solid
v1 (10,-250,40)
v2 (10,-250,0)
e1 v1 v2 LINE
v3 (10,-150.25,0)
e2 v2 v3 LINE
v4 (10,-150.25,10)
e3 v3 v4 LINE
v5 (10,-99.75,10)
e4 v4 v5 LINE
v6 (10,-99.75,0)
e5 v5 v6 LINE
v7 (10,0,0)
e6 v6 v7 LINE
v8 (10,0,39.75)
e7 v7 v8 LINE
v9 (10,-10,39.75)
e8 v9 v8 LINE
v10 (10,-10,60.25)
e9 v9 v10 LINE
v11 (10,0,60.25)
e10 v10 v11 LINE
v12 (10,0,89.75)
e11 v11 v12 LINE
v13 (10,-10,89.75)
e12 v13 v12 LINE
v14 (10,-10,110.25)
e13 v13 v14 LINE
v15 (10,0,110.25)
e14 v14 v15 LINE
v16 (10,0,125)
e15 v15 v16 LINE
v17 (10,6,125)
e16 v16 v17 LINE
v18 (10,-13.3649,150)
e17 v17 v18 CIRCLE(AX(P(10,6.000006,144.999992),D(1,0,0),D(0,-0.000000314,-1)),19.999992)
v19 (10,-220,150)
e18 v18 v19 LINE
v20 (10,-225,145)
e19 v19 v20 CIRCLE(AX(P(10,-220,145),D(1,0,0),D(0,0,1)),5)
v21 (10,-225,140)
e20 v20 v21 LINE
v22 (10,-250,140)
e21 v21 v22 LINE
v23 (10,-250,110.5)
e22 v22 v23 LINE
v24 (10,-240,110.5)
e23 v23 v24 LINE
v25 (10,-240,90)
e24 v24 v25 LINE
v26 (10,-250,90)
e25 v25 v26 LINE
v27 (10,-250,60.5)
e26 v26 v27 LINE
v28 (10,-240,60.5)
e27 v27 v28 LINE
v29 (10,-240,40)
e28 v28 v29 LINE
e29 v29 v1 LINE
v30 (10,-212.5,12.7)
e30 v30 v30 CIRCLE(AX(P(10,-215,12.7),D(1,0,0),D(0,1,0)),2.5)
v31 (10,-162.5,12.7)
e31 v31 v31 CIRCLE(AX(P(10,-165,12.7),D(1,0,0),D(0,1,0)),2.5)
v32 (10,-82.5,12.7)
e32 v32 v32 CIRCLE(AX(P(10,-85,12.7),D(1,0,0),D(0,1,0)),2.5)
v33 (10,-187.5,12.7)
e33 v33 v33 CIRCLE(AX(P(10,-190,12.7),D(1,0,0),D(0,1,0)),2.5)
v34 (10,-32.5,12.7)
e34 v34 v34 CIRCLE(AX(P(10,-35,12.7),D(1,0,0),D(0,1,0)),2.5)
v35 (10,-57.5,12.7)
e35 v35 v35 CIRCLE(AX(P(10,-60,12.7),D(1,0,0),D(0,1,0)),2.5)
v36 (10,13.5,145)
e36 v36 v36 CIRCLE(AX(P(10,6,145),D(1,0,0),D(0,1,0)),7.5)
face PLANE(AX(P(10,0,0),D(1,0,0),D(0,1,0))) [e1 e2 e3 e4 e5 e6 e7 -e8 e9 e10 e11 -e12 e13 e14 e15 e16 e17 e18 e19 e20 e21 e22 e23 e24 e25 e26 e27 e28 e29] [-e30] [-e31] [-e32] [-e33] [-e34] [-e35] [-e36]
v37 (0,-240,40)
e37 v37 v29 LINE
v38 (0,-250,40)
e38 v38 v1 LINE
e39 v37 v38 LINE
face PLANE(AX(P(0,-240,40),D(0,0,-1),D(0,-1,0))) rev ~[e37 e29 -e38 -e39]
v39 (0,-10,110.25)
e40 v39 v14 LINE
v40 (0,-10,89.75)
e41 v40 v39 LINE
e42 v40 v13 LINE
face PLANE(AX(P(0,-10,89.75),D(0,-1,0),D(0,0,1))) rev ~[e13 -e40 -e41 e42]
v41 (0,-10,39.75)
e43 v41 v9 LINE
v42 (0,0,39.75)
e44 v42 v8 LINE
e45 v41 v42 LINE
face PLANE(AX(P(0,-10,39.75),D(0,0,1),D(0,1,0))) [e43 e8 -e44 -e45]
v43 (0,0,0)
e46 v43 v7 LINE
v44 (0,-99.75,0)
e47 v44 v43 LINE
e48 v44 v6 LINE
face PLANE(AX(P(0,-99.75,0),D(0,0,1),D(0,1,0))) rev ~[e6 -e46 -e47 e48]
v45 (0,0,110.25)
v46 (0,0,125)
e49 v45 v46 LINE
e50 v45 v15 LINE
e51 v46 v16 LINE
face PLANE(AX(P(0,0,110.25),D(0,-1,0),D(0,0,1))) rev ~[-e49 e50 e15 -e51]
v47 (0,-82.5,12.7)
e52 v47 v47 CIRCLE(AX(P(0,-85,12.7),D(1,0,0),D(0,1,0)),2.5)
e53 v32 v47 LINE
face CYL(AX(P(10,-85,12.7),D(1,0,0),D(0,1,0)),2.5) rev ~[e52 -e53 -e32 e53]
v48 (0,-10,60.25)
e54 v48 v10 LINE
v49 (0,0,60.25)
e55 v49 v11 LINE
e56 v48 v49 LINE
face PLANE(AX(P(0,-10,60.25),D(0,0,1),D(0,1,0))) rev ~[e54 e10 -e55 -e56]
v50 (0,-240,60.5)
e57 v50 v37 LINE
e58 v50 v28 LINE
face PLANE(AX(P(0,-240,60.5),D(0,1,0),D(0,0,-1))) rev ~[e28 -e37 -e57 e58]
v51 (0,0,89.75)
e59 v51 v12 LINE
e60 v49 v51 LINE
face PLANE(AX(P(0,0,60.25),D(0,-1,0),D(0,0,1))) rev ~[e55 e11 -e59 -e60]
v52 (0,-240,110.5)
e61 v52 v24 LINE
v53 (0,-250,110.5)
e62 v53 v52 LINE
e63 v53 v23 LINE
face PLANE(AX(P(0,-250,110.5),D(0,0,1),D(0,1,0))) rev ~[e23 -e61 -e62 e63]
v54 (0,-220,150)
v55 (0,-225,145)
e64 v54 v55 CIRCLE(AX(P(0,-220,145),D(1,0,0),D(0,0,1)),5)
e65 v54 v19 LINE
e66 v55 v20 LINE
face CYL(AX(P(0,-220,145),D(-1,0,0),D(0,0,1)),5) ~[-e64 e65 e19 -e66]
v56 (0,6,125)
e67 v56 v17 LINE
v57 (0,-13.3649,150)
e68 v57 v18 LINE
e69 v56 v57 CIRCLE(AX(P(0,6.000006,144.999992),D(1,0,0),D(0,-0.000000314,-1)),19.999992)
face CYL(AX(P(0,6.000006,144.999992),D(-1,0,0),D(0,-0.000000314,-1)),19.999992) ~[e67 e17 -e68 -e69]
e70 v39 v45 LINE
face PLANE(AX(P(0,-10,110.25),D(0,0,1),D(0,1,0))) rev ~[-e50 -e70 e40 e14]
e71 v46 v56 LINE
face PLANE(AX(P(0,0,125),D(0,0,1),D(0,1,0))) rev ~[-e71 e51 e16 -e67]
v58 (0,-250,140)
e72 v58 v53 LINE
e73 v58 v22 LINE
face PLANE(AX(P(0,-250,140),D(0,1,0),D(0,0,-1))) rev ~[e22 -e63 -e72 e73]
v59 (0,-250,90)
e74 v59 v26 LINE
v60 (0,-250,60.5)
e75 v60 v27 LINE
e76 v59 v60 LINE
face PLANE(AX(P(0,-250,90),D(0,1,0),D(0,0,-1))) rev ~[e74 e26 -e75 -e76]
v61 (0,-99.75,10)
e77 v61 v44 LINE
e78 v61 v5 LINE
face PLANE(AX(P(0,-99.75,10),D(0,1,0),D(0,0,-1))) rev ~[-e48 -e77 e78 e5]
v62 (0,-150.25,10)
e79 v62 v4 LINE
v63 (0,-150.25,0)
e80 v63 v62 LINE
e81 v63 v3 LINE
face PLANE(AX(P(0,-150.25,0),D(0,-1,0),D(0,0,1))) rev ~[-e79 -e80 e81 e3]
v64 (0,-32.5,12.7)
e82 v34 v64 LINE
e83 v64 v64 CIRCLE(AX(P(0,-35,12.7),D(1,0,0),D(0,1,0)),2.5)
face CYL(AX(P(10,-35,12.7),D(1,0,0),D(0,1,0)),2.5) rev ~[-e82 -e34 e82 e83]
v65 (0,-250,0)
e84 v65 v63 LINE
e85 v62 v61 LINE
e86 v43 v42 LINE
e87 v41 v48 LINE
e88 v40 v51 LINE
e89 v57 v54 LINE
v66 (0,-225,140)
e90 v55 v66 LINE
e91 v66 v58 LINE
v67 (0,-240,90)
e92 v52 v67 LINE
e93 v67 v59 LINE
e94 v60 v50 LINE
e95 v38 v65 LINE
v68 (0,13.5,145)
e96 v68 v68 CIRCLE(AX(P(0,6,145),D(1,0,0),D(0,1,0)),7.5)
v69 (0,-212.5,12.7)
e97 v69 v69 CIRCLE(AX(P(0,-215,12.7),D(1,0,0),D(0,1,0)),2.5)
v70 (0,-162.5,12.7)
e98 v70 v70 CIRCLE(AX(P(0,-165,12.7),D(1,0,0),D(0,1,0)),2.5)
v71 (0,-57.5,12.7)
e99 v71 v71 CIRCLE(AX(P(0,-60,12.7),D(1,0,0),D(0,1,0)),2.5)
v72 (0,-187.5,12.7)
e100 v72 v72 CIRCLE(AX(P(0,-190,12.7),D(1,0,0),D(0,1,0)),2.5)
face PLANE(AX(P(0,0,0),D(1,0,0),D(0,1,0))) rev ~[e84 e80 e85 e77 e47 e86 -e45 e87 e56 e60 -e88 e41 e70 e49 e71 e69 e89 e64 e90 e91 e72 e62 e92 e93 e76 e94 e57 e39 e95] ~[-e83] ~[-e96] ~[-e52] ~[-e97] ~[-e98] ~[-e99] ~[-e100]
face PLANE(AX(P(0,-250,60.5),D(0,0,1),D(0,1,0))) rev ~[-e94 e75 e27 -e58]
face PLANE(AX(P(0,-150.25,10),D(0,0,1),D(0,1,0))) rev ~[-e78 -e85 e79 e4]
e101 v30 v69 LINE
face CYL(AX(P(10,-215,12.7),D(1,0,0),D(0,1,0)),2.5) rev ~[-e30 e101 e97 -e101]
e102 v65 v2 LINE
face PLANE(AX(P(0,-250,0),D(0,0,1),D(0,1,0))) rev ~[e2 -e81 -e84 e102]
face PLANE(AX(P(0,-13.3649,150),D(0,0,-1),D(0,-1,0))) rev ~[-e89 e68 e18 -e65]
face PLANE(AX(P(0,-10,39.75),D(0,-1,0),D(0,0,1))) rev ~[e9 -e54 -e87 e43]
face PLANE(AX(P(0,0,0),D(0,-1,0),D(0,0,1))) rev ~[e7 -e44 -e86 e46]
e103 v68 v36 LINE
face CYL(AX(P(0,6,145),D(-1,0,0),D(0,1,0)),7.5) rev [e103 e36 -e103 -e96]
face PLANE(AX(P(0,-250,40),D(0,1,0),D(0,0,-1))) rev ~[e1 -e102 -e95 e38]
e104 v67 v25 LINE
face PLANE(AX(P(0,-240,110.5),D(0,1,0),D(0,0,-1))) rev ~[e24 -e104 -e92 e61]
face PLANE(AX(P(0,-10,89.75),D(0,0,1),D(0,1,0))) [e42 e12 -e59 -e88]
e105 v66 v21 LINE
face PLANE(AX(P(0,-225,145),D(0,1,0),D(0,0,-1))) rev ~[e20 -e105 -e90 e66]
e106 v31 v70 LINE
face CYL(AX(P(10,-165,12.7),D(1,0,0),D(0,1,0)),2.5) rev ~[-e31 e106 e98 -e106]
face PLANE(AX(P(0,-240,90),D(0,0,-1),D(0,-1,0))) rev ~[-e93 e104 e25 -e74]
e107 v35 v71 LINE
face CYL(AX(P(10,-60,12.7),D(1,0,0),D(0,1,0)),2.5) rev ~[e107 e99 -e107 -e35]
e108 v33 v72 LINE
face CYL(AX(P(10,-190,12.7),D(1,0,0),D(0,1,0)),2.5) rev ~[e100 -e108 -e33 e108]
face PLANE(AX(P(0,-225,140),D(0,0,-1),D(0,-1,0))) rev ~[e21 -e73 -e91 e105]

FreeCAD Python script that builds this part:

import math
import FreeCAD as App
import Part
import Sketcher
from FreeCAD import Vector

doc = App.newDocument("Part")
body = doc.addObject("PartDesign::Body", "Body")

# Sketch on YZ plane
sketch1 = body.newObject("Sketcher::SketchObject", "Sketch")
sketch1.AttachmentSupport = (doc.getObject("YZ_Plane"), [""])
sketch1.MapMode = "FlatFace"
sketch1.addGeometry([
    Part.LineSegment(Vector(-99.75, 0, 0), Vector(0, 0, 0)),  # 0
    Part.LineSegment(Vector(0, 0, 0), Vector(0, 39.75, 0)),  # 1
    Part.LineSegment(Vector(0, 39.75, 0), Vector(-10, 39.75, 0)),  # 2
    Part.LineSegment(Vector(-10, 39.75, 0), Vector(-10, 60.25, 0)),  # 3
    Part.LineSegment(Vector(-10, 60.25, 0), Vector(0, 60.25, 0)),  # 4
    Part.LineSegment(Vector(0, 60.25, 0), Vector(0, 89.75, 0)),  # 5
    Part.LineSegment(Vector(0, 89.75, 0), Vector(-10, 89.75, 0)),  # 6
    Part.LineSegment(Vector(-10, 89.75, 0), Vector(-10, 110.25, 0)),  # 7
    Part.LineSegment(Vector(-10, 110.25, 0), Vector(0, 110.25, 0)),  # 8
    Part.LineSegment(Vector(0, 110.25, 0), Vector(0, 125, 0)),  # 9
    Part.LineSegment(Vector(0, 125, 0), Vector(6, 125, 0)),  # 10
    Part.ArcOfCircle(Part.Circle(Vector(6, 145, 0), Vector(0, 0, 1), 20), math.radians(-90), math.radians(165.522476)),  # 11
    Part.LineSegment(Vector(-13.3649, 150, 0), Vector(-220, 150, 0)),  # 12
    Part.ArcOfCircle(Part.Circle(Vector(-220, 145, 0), Vector(0, 0, 1), 5), math.radians(90), math.radians(180)),  # 13
    Part.LineSegment(Vector(-225, 145, 0), Vector(-225, 140, 0)),  # 14
    Part.LineSegment(Vector(-225, 140, 0), Vector(-250, 140, 0)),  # 15
    Part.LineSegment(Vector(-250, 140, 0), Vector(-250, 110.5, 0)),  # 16
    Part.LineSegment(Vector(-250, 110.5, 0), Vector(-240, 110.5, 0)),  # 17
    Part.LineSegment(Vector(-240, 110.5, 0), Vector(-240, 90, 0)),  # 18
    Part.LineSegment(Vector(-240, 90, 0), Vector(-250, 90, 0)),  # 19
    Part.LineSegment(Vector(-250, 90, 0), Vector(-250, 60.5, 0)),  # 20
    Part.LineSegment(Vector(-250, 60.5, 0), Vector(-240, 60.5, 0)),  # 21
    Part.LineSegment(Vector(-240, 60.5, 0), Vector(-240, 40, 0)),  # 22
    Part.LineSegment(Vector(-240, 40, 0), Vector(-250, 40, 0)),  # 23
    Part.LineSegment(Vector(-250, 40, 0), Vector(-250, 0, 0)),  # 24
    Part.LineSegment(Vector(-250, 0, 0), Vector(-150.25, 0, 0)),  # 25
    Part.LineSegment(Vector(-150.25, 0, 0), Vector(-150.25, 10, 0)),  # 26
    Part.LineSegment(Vector(-150.25, 10, 0), Vector(-99.75, 10, 0)),  # 27
    Part.LineSegment(Vector(-99.75, 10, 0), Vector(-99.75, 0, 0)),  # 28
    Part.Circle(Vector(6, 145, 0), Vector(0, 0, 1), 7.5),  # 29
], False)
sketch1.addConstraint([
    Sketcher.Constraint("Coincident", 0, 2, 1, 1),
    Sketcher.Constraint("Coincident", 1, 2, 2, 1),
    Sketcher.Constraint("Coincident", 2, 2, 3, 1),
    Sketcher.Constraint("Coincident", 3, 2, 4, 1),
    Sketcher.Constraint("Coincident", 4, 2, 5, 1),
    Sketcher.Constraint("Coincident", 5, 2, 6, 1),
    Sketcher.Constraint("Coincident", 6, 2, 7, 1),
    Sketcher.Constraint("Coincident", 7, 2, 8, 1),
    Sketcher.Constraint("Coincident", 8, 2, 9, 1),
    Sketcher.Constraint("Coincident", 9, 2, 10, 1),
    Sketcher.Constraint("Tangent", 10, 2, 11, 1),
    Sketcher.Constraint("Coincident", 11, 2, 12, 1),
    Sketcher.Constraint("Tangent", 12, 2, 13, 1),
    Sketcher.Constraint("Tangent", 13, 2, 14, 1),
    Sketcher.Constraint("Coincident", 14, 2, 15, 1),
    Sketcher.Constraint("Coincident", 15, 2, 16, 1),
    Sketcher.Constraint("Coincident", 16, 2, 17, 1),
    Sketcher.Constraint("Coincident", 17, 2, 18, 1),
    Sketcher.Constraint("Coincident", 18, 2, 19, 1),
    Sketcher.Constraint("Coincident", 19, 2, 20, 1),
    Sketcher.Constraint("Coincident", 20, 2, 21, 1),
    Sketcher.Constraint("Coincident", 21, 2, 22, 1),
    Sketcher.Constraint("Coincident", 22, 2, 23, 1),
    Sketcher.Constraint("Coincident", 23, 2, 24, 1),
    Sketcher.Constraint("Coincident", 24, 2, 25, 1),
    Sketcher.Constraint("Coincident", 25, 2, 26, 1),
    Sketcher.Constraint("Coincident", 26, 2, 27, 1),
    Sketcher.Constraint("Coincident", 27, 2, 28, 1),
    Sketcher.Constraint("Coincident", 28, 2, 0, 1),
    Sketcher.Constraint("Horizontal", 0),
    Sketcher.Constraint("Vertical", 1),
    Sketcher.Constraint("Horizontal", 2),
    Sketcher.Constraint("Vertical", 3),
    Sketcher.Constraint("Horizontal", 4),
    Sketcher.Constraint("Vertical", 5),
    Sketcher.Constraint("Horizontal", 6),
    Sketcher.Constraint("Vertical", 7),
    Sketcher.Constraint("Horizontal", 8),
    Sketcher.Constraint("Vertical", 9),
    Sketcher.Constraint("Horizontal", 10),
    Sketcher.Constraint("Horizontal", 12),
    Sketcher.Constraint("Vertical", 14),
    Sketcher.Constraint("Horizontal", 15),
    Sketcher.Constraint("Vertical", 16),
    Sketcher.Constraint("Horizontal", 17),
    Sketcher.Constraint("Vertical", 18),
    Sketcher.Constraint("Horizontal", 19),
    Sketcher.Constraint("Vertical", 20),
    Sketcher.Constraint("Horizontal", 21),
    Sketcher.Constraint("Vertical", 22),
    Sketcher.Constraint("Horizontal", 23),
    Sketcher.Constraint("Vertical", 24),
    Sketcher.Constraint("Horizontal", 25),
    Sketcher.Constraint("Vertical", 26),
    Sketcher.Constraint("Horizontal", 27),
    Sketcher.Constraint("Vertical", 28),
    Sketcher.Constraint("Coincident", 0, 2, -1, 1),
    Sketcher.Constraint("Coincident", 29, 3, 11, 3),
    Sketcher.Constraint("PointOnObject", 4, 2, -2),
    Sketcher.Constraint("PointOnObject", 8, 2, -2),
    Sketcher.Constraint("PointOnObject", 24, 2, -1),
    Sketcher.Constraint("Horizontal", 11, 3, 13, 3),
    Sketcher.Constraint("Vertical", 3, 2, 6, 2),
    Sketcher.Constraint("Vertical", 16, 2, 19, 2),
    Sketcher.Constraint("Vertical", 18, 2, 21, 2),
    Sketcher.Constraint("Vertical", 20, 2, 23, 2),
    Sketcher.Constraint("Equal", 8, 17),
    Sketcher.Constraint("Equal", 0, 25),
    Sketcher.Constraint("Equal", 3, 7),
    Sketcher.Constraint("Equal", 5, 16),
    Sketcher.Constraint("Equal", 7, 18),
    Sketcher.Constraint("Equal", 16, 20),
    Sketcher.Constraint("Equal", 18, 22),
    Sketcher.Constraint("Equal", 23, 26),
    Sketcher.Constraint("Diameter", 29, 15.0),
    Sketcher.Constraint("Radius", 11, 20.0),
    Sketcher.Constraint("Radius", 13, 5.0),
    Sketcher.Constraint("DistanceX", 2, 2, 2, 1, 10.0),
    Sketcher.Constraint("DistanceX", 15, 2, 15, 1, 25.0),
    Sketcher.Constraint("DistanceY", 14, 2, 14, 1, 5.0),
    Sketcher.Constraint("DistanceY", 24, 2, 24, 1, 40.0),
    Sketcher.Constraint("DistanceX", 27, 1, 27, 2, 50.5),
    Sketcher.Constraint("DistanceY", 3, 1, 3, 2, 20.5),
    Sketcher.Constraint("DistanceY", -1, 1, 11, 2, 150.0),
    Sketcher.Constraint("DistanceX", 15, 2, -1, 1, 250.0),
    Sketcher.Constraint("DistanceX", 10, 1, 10, 2, 6.0),
    Sketcher.Constraint("DistanceY", 1, 1, 1, 2, 39.75),
])
pad1 = body.newObject("PartDesign::Pad", "Pad")
pad1.Profile = sketch1
pad1.Length = 10

# Sketch on YZ plane
sketch2 = body.newObject("Sketcher::SketchObject", "Sketch001")
sketch2.AttachmentSupport = (doc.getObject("YZ_Plane"), [""])
sketch2.MapMode = "FlatFace"
sketch2.AttachmentOffset = App.Placement(Vector(0, 0, 10), App.Rotation())
sketch2.addGeometry([
    Part.Circle(Vector(-215, 12.7, 0), Vector(0, 0, 1), 2.5),  # 0
    Part.Circle(Vector(-190, 12.7, 0), Vector(0, 0, 1), 2.5),  # 1
    Part.Circle(Vector(-165, 12.7, 0), Vector(0, 0, 1), 2.5),  # 2
    Part.Circle(Vector(-35, 12.7, 0), Vector(0, 0, 1), 2.5),  # 3
    Part.Circle(Vector(-85, 12.7, 0), Vector(0, 0, 1), 2.5),  # 4
    Part.Circle(Vector(-60, 12.7, 0), Vector(0, 0, 1), 2.5),  # 5
], False)
sketch2.addConstraint([
    Sketcher.Constraint("Equal", 0, 1),
    Sketcher.Constraint("Equal", 1, 2),
    Sketcher.Constraint("Equal", 2, 3),
    Sketcher.Constraint("Equal", 3, 4),
    Sketcher.Constraint("Equal", 4, 5),
    Sketcher.Constraint("Horizontal", 0, 3, 1, 3),
    Sketcher.Constraint("Horizontal", 1, 3, 2, 3),
    Sketcher.Constraint("Horizontal", 2, 3, 3, 3),
    Sketcher.Constraint("Horizontal", 3, 3, 4, 3),
    Sketcher.Constraint("Horizontal", 4, 3, 5, 3),
    Sketcher.Constraint("Diameter", 0, 5.0),
    Sketcher.Constraint("DistanceX", 3, 3, -1, 1, 35.0),
    Sketcher.Constraint("DistanceX", 0, 3, 1, 3, 25.0),
    Sketcher.Constraint("DistanceX", 1, 3, 2, 3, 25.0),
    Sketcher.Constraint("DistanceX", 5, 3, 3, 3, 25.0),
    Sketcher.Constraint("DistanceX", 4, 3, 5, 3, 25.0),
    Sketcher.Constraint("DistanceX", 0, 3, -1, 1, 215.0),
    Sketcher.Constraint("DistanceY", -1, 1, 0, 3, 12.7),
])
pocket1 = body.newObject("PartDesign::Pocket", "Pocket")
pocket1.Profile = sketch2
pocket1.Type = "ThroughAll"

doc.recompute()
